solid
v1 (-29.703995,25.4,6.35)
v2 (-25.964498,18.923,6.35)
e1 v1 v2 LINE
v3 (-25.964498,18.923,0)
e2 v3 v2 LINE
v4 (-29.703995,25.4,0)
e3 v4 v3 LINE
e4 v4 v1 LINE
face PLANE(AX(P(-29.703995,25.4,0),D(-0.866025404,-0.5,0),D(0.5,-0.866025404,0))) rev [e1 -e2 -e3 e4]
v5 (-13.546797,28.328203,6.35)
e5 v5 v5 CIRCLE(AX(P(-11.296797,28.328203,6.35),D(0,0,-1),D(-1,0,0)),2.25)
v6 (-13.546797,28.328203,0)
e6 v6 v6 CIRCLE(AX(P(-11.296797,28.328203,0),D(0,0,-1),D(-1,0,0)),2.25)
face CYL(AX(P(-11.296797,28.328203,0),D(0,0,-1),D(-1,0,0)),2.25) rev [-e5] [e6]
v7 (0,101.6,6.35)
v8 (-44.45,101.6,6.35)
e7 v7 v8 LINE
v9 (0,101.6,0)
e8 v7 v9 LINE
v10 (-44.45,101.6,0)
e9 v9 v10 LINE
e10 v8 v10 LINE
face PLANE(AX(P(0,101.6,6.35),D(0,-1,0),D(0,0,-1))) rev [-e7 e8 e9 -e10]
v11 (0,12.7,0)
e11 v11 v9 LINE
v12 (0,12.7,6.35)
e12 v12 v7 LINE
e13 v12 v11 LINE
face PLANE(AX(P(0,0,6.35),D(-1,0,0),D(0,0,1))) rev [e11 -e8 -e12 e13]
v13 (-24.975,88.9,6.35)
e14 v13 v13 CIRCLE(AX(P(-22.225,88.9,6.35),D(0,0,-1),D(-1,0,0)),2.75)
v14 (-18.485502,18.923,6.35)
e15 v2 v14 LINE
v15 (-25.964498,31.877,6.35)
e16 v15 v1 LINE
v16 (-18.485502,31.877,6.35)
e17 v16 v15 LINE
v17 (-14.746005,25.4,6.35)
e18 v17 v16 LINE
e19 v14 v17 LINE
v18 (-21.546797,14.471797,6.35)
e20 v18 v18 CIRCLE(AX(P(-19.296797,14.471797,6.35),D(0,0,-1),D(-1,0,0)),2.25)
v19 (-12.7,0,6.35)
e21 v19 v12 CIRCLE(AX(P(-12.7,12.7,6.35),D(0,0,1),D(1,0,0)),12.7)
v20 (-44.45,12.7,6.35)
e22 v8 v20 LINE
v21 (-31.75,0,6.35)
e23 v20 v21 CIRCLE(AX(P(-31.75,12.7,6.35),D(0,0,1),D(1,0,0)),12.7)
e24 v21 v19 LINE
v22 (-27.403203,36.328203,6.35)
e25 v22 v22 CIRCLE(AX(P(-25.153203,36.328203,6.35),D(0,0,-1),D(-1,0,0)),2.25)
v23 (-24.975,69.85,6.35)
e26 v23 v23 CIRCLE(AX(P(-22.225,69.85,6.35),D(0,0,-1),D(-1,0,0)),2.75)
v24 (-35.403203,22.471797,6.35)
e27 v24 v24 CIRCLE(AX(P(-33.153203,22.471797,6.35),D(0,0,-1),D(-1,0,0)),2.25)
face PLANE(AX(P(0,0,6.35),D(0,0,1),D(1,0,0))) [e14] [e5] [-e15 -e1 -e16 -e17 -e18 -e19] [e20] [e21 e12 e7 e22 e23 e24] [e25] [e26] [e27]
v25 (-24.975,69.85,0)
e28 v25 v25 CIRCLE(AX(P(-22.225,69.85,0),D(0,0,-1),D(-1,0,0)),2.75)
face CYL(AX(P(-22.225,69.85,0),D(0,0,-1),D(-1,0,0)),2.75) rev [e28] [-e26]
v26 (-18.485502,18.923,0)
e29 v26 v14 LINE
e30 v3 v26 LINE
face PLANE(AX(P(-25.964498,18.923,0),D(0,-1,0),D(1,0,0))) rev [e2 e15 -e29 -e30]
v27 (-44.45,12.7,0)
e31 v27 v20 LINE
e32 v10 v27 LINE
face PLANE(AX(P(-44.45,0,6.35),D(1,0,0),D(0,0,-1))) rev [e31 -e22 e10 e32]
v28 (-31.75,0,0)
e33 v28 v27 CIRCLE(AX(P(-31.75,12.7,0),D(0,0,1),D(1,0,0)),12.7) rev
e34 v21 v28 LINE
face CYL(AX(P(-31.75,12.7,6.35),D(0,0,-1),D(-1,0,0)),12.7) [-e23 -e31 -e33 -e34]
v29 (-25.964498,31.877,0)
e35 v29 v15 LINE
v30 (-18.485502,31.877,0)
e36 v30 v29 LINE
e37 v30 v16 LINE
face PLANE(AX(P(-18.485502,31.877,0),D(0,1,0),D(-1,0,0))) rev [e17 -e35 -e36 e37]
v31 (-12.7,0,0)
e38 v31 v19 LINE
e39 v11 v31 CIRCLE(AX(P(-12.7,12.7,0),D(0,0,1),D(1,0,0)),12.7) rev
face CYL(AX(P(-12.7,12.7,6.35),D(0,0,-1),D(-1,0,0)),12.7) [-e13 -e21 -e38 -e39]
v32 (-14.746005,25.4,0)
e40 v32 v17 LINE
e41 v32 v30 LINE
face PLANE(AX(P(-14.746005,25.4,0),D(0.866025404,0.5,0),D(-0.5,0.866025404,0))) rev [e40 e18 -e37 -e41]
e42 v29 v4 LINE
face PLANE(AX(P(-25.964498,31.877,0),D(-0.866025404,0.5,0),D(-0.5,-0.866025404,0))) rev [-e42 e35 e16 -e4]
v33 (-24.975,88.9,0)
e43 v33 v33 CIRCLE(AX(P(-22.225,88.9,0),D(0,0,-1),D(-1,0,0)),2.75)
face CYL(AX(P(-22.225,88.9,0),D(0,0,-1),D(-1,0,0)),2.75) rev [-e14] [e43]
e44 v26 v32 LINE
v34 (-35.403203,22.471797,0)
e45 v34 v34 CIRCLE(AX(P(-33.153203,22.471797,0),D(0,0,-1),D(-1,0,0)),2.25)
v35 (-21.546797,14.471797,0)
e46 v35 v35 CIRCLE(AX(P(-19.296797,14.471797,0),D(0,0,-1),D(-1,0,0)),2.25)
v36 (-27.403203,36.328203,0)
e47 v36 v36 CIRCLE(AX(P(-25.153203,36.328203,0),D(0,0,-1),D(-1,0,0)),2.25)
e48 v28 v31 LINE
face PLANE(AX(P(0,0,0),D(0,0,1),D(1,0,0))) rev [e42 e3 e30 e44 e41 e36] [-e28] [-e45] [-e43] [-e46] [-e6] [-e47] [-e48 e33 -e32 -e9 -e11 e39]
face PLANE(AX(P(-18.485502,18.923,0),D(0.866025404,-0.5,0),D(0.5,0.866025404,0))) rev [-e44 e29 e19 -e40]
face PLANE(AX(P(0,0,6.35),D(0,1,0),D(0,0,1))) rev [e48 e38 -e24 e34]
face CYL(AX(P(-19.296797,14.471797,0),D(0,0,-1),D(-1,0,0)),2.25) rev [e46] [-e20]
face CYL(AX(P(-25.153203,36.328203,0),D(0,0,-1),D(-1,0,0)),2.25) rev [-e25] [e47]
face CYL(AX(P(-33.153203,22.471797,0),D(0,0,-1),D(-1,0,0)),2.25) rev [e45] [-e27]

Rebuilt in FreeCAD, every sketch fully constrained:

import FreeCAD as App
import Part
import Sketcher
from FreeCAD import Vector
Q = App.Units.Quantity


def edges_at(feature, points):
    """Names of the edges that pass closest to the given points."""
    edges = feature.Shape.Edges
    near = lambda p: min(range(len(edges)), key=lambda i: edges[i].distToShape(Part.Vertex(*p))[0])
    return sorted({f"Edge{near(p) + 1}" for p in points})

doc = App.newDocument("Part")
body = doc.addObject("PartDesign::Body", "Body")

# Sketch on XY plane
sketch1 = body.newObject("Sketcher::SketchObject", "Sketch")
sketch1.AttachmentSupport = (doc.getObject("XY_Plane"), [""])
sketch1.MapMode = "FlatFace"
sketch1.addGeometry([
    Part.LineSegment(Vector(-44, 102, 0), Vector(-44, 0, 0)),
    Part.LineSegment(Vector(-44, 0, 0), Vector(0, 0, 0)),
    Part.LineSegment(Vector(0, 0, 0), Vector(0, 102, 0)),
    Part.LineSegment(Vector(0, 102, 0), Vector(-44, 102, 0)),
], False)
sketch1.addConstraint([
    Sketcher.Constraint("Coincident", 0, 2, 1, 1),
    Sketcher.Constraint("Coincident", 1, 2, 2, 1),
    Sketcher.Constraint("Coincident", 2, 2, 3, 1),
    Sketcher.Constraint("Coincident", 3, 2, 0, 1),
    Sketcher.Constraint("Vertical", 0),
    Sketcher.Constraint("Horizontal", 1),
    Sketcher.Constraint("Vertical", 2),
    Sketcher.Constraint("Horizontal", 3),
    Sketcher.Constraint("Coincident", 1, 2, -1, 1),
    Sketcher.Constraint("DistanceY", 0, 2, 0, 1, Q("4 in")),
    Sketcher.Constraint("DistanceX", 1, 1, 1, 2, Q("1.75 in")),
])
pad1 = body.newObject("PartDesign::Pad", "Pad")
pad1.Profile = sketch1
pad1.Length = Q("0.25 in")
doc.recompute()

fillet = body.newObject("PartDesign::Fillet", "Fillet")
fillet.Base = (pad1, edges_at(pad1, [(0, 0, 3.175), (-44.45, 0, 3.175)]))
fillet.Radius = Q("0.5 in")

# Sketch on XY plane
sketch2 = body.newObject("Sketcher::SketchObject", "Sketch001")
sketch2.AttachmentSupport = (doc.getObject("XY_Plane"), [""])
sketch2.MapMode = "FlatFace"
sketch2.addGeometry([
    Part.Circle(Vector(-22.2, 88.9, 0), Vector(0, 0, 1), 2.8),
    Part.Circle(Vector(-22.2, 69.8, 0), Vector(0, 0, 1), 2.8),
], False)
sketch2.addConstraint([
    Sketcher.Constraint("Equal", 0, 1),
    Sketcher.Constraint("Vertical", 0, 3, 1, 3),
    Sketcher.Constraint("DistanceY", -1, 1, 0, 3, Q("3.5 in")),
    Sketcher.Constraint("Diameter", 0, Q("5.5 mm")),
    Sketcher.Constraint("DistanceY", -1, 1, 1, 3, Q("2.75 in")),
    Sketcher.Constraint("DistanceX", 0, 3, -1, 1, Q("0.875 in")),
])
doc.recompute()
hole = body.newObject("PartDesign::Hole", "Hole")
hole.Profile = sketch2
hole.ThreadType = "None"
hole.Diameter = 5.5
hole.DepthType = "ThroughAll"
hole.Reversed = True

# Sketch on XY plane
sketch3 = body.newObject("Sketcher::SketchObject", "Sketch002")
sketch3.AttachmentSupport = (doc.getObject("XY_Plane"), [""])
sketch3.MapMode = "FlatFace"
sketch3.AttachmentOffset = App.Placement(Vector(0, 0, 0.25 * 25.4), App.Rotation())
sketch3.addGeometry([
    Part.LineSegment(Vector(-15, 25, 0), Vector(-18, 32, 0)),  # 0
    Part.LineSegment(Vector(-18, 32, 0), Vector(-26, 32, 0)),  # 1
    Part.LineSegment(Vector(-26, 32, 0), Vector(-30, 25, 0)),  # 2
    Part.LineSegment(Vector(-30, 25, 0), Vector(-26, 19, 0)),  # 3
    Part.LineSegment(Vector(-26, 19, 0), Vector(-18, 19, 0)),  # 4
    Part.LineSegment(Vector(-18, 19, 0), Vector(-15, 25, 0)),  # 5
], False)
sketch3.addConstraint([
    Sketcher.Constraint("Coincident", 0, 2, 1, 1),
    Sketcher.Constraint("Coincident", 1, 2, 2, 1),
    Sketcher.Constraint("Coincident", 2, 2, 3, 1),
    Sketcher.Constraint("Coincident", 3, 2, 4, 1),
    Sketcher.Constraint("Coincident", 4, 2, 5, 1),
    Sketcher.Constraint("Coincident", 5, 2, 0, 1),
    Sketcher.Constraint("Horizontal", 1),
    Sketcher.Constraint("Horizontal", 4),
    Sketcher.Constraint("Parallel", 0, 3),
    Sketcher.Constraint("Parallel", 2, 5),
    Sketcher.Constraint("Horizontal", 2, 2, 5, 2),
    Sketcher.Constraint("Vertical", 1, 2, 3, 2),
    Sketcher.Constraint("Vertical", 0, 2, 4, 2),
    Sketcher.Constraint("DistanceY", -1, 1, 2, 2, Q("1 in")),
    Sketcher.Constraint("Angle", 0, Q("120 deg")),
    Sketcher.Constraint("DistanceY", 3, 2, 1, 2, Q("0.51 in")),
    Sketcher.Constraint("DistanceX", 1, 2, 1, 1, Q("7.478995 mm")),
    Sketcher.Constraint("DistanceX", 0, 2, -1, 1, Q("18.485502 mm")),
])
pocket1 = body.newObject("PartDesign::Pocket", "Pocket")
pocket1.Profile = sketch3
pocket1.Type = "ThroughAll"

# Sketch on XY plane
sketch4 = body.newObject("Sketcher::SketchObject", "Sketch003")
sketch4.AttachmentSupport = (doc.getObject("XY_Plane"), [""])
sketch4.MapMode = "FlatFace"
sketch4.addGeometry([
    Part.Circle(Vector(-11.3, 28.3, 0), Vector(0, 0, 1), 2.2),
    Part.Circle(Vector(-25.2, 36.3, 0), Vector(0, 0, 1), 2.2),
    Part.Circle(Vector(-33.2, 22.5, 0), Vector(0, 0, 1), 2.2),
    Part.Circle(Vector(-19.3, 14.5, 0), Vector(0, 0, 1), 2.2),
], False)
sketch4.addConstraint([
    Sketcher.Constraint("Equal", 0, 1),
    Sketcher.Constraint("Equal", 1, 2),
    Sketcher.Constraint("Equal", 2, 3),
    Sketcher.Constraint("Diameter", 0, Q("4.5 mm")),
    Sketcher.Constraint("DistanceY", 0, 3, 1, 3, Q("8 mm")),
    Sketcher.Constraint("DistanceX", 2, 3, 1, 3, Q("8 mm")),
    Sketcher.Constraint("DistanceX", 3, 3, 0, 3, Q("8 mm")),
    Sketcher.Constraint("DistanceY", 3, 3, 2, 3, Q("8 mm")),
    Sketcher.Constraint("DistanceX", 0, 3, -1, 1, Q("11.296797 mm")),
    Sketcher.Constraint("DistanceY", -1, 1, 0, 3, Q("28.328203 mm")),
    Sketcher.Constraint("DistanceX", 1, 3, -1, 1, Q("25.153203 mm")),
    Sketcher.Constraint("DistanceY", -1, 1, 2, 3, Q("22.471797 mm")),
])
doc.recompute()
hole2 = body.newObject("PartDesign::Hole", "Hole001")
hole2.Profile = sketch4
hole2.ThreadType = "None"
hole2.Diameter = 4.5
hole2.DepthType = "ThroughAll"
hole2.Reversed = True

doc.recompute()
